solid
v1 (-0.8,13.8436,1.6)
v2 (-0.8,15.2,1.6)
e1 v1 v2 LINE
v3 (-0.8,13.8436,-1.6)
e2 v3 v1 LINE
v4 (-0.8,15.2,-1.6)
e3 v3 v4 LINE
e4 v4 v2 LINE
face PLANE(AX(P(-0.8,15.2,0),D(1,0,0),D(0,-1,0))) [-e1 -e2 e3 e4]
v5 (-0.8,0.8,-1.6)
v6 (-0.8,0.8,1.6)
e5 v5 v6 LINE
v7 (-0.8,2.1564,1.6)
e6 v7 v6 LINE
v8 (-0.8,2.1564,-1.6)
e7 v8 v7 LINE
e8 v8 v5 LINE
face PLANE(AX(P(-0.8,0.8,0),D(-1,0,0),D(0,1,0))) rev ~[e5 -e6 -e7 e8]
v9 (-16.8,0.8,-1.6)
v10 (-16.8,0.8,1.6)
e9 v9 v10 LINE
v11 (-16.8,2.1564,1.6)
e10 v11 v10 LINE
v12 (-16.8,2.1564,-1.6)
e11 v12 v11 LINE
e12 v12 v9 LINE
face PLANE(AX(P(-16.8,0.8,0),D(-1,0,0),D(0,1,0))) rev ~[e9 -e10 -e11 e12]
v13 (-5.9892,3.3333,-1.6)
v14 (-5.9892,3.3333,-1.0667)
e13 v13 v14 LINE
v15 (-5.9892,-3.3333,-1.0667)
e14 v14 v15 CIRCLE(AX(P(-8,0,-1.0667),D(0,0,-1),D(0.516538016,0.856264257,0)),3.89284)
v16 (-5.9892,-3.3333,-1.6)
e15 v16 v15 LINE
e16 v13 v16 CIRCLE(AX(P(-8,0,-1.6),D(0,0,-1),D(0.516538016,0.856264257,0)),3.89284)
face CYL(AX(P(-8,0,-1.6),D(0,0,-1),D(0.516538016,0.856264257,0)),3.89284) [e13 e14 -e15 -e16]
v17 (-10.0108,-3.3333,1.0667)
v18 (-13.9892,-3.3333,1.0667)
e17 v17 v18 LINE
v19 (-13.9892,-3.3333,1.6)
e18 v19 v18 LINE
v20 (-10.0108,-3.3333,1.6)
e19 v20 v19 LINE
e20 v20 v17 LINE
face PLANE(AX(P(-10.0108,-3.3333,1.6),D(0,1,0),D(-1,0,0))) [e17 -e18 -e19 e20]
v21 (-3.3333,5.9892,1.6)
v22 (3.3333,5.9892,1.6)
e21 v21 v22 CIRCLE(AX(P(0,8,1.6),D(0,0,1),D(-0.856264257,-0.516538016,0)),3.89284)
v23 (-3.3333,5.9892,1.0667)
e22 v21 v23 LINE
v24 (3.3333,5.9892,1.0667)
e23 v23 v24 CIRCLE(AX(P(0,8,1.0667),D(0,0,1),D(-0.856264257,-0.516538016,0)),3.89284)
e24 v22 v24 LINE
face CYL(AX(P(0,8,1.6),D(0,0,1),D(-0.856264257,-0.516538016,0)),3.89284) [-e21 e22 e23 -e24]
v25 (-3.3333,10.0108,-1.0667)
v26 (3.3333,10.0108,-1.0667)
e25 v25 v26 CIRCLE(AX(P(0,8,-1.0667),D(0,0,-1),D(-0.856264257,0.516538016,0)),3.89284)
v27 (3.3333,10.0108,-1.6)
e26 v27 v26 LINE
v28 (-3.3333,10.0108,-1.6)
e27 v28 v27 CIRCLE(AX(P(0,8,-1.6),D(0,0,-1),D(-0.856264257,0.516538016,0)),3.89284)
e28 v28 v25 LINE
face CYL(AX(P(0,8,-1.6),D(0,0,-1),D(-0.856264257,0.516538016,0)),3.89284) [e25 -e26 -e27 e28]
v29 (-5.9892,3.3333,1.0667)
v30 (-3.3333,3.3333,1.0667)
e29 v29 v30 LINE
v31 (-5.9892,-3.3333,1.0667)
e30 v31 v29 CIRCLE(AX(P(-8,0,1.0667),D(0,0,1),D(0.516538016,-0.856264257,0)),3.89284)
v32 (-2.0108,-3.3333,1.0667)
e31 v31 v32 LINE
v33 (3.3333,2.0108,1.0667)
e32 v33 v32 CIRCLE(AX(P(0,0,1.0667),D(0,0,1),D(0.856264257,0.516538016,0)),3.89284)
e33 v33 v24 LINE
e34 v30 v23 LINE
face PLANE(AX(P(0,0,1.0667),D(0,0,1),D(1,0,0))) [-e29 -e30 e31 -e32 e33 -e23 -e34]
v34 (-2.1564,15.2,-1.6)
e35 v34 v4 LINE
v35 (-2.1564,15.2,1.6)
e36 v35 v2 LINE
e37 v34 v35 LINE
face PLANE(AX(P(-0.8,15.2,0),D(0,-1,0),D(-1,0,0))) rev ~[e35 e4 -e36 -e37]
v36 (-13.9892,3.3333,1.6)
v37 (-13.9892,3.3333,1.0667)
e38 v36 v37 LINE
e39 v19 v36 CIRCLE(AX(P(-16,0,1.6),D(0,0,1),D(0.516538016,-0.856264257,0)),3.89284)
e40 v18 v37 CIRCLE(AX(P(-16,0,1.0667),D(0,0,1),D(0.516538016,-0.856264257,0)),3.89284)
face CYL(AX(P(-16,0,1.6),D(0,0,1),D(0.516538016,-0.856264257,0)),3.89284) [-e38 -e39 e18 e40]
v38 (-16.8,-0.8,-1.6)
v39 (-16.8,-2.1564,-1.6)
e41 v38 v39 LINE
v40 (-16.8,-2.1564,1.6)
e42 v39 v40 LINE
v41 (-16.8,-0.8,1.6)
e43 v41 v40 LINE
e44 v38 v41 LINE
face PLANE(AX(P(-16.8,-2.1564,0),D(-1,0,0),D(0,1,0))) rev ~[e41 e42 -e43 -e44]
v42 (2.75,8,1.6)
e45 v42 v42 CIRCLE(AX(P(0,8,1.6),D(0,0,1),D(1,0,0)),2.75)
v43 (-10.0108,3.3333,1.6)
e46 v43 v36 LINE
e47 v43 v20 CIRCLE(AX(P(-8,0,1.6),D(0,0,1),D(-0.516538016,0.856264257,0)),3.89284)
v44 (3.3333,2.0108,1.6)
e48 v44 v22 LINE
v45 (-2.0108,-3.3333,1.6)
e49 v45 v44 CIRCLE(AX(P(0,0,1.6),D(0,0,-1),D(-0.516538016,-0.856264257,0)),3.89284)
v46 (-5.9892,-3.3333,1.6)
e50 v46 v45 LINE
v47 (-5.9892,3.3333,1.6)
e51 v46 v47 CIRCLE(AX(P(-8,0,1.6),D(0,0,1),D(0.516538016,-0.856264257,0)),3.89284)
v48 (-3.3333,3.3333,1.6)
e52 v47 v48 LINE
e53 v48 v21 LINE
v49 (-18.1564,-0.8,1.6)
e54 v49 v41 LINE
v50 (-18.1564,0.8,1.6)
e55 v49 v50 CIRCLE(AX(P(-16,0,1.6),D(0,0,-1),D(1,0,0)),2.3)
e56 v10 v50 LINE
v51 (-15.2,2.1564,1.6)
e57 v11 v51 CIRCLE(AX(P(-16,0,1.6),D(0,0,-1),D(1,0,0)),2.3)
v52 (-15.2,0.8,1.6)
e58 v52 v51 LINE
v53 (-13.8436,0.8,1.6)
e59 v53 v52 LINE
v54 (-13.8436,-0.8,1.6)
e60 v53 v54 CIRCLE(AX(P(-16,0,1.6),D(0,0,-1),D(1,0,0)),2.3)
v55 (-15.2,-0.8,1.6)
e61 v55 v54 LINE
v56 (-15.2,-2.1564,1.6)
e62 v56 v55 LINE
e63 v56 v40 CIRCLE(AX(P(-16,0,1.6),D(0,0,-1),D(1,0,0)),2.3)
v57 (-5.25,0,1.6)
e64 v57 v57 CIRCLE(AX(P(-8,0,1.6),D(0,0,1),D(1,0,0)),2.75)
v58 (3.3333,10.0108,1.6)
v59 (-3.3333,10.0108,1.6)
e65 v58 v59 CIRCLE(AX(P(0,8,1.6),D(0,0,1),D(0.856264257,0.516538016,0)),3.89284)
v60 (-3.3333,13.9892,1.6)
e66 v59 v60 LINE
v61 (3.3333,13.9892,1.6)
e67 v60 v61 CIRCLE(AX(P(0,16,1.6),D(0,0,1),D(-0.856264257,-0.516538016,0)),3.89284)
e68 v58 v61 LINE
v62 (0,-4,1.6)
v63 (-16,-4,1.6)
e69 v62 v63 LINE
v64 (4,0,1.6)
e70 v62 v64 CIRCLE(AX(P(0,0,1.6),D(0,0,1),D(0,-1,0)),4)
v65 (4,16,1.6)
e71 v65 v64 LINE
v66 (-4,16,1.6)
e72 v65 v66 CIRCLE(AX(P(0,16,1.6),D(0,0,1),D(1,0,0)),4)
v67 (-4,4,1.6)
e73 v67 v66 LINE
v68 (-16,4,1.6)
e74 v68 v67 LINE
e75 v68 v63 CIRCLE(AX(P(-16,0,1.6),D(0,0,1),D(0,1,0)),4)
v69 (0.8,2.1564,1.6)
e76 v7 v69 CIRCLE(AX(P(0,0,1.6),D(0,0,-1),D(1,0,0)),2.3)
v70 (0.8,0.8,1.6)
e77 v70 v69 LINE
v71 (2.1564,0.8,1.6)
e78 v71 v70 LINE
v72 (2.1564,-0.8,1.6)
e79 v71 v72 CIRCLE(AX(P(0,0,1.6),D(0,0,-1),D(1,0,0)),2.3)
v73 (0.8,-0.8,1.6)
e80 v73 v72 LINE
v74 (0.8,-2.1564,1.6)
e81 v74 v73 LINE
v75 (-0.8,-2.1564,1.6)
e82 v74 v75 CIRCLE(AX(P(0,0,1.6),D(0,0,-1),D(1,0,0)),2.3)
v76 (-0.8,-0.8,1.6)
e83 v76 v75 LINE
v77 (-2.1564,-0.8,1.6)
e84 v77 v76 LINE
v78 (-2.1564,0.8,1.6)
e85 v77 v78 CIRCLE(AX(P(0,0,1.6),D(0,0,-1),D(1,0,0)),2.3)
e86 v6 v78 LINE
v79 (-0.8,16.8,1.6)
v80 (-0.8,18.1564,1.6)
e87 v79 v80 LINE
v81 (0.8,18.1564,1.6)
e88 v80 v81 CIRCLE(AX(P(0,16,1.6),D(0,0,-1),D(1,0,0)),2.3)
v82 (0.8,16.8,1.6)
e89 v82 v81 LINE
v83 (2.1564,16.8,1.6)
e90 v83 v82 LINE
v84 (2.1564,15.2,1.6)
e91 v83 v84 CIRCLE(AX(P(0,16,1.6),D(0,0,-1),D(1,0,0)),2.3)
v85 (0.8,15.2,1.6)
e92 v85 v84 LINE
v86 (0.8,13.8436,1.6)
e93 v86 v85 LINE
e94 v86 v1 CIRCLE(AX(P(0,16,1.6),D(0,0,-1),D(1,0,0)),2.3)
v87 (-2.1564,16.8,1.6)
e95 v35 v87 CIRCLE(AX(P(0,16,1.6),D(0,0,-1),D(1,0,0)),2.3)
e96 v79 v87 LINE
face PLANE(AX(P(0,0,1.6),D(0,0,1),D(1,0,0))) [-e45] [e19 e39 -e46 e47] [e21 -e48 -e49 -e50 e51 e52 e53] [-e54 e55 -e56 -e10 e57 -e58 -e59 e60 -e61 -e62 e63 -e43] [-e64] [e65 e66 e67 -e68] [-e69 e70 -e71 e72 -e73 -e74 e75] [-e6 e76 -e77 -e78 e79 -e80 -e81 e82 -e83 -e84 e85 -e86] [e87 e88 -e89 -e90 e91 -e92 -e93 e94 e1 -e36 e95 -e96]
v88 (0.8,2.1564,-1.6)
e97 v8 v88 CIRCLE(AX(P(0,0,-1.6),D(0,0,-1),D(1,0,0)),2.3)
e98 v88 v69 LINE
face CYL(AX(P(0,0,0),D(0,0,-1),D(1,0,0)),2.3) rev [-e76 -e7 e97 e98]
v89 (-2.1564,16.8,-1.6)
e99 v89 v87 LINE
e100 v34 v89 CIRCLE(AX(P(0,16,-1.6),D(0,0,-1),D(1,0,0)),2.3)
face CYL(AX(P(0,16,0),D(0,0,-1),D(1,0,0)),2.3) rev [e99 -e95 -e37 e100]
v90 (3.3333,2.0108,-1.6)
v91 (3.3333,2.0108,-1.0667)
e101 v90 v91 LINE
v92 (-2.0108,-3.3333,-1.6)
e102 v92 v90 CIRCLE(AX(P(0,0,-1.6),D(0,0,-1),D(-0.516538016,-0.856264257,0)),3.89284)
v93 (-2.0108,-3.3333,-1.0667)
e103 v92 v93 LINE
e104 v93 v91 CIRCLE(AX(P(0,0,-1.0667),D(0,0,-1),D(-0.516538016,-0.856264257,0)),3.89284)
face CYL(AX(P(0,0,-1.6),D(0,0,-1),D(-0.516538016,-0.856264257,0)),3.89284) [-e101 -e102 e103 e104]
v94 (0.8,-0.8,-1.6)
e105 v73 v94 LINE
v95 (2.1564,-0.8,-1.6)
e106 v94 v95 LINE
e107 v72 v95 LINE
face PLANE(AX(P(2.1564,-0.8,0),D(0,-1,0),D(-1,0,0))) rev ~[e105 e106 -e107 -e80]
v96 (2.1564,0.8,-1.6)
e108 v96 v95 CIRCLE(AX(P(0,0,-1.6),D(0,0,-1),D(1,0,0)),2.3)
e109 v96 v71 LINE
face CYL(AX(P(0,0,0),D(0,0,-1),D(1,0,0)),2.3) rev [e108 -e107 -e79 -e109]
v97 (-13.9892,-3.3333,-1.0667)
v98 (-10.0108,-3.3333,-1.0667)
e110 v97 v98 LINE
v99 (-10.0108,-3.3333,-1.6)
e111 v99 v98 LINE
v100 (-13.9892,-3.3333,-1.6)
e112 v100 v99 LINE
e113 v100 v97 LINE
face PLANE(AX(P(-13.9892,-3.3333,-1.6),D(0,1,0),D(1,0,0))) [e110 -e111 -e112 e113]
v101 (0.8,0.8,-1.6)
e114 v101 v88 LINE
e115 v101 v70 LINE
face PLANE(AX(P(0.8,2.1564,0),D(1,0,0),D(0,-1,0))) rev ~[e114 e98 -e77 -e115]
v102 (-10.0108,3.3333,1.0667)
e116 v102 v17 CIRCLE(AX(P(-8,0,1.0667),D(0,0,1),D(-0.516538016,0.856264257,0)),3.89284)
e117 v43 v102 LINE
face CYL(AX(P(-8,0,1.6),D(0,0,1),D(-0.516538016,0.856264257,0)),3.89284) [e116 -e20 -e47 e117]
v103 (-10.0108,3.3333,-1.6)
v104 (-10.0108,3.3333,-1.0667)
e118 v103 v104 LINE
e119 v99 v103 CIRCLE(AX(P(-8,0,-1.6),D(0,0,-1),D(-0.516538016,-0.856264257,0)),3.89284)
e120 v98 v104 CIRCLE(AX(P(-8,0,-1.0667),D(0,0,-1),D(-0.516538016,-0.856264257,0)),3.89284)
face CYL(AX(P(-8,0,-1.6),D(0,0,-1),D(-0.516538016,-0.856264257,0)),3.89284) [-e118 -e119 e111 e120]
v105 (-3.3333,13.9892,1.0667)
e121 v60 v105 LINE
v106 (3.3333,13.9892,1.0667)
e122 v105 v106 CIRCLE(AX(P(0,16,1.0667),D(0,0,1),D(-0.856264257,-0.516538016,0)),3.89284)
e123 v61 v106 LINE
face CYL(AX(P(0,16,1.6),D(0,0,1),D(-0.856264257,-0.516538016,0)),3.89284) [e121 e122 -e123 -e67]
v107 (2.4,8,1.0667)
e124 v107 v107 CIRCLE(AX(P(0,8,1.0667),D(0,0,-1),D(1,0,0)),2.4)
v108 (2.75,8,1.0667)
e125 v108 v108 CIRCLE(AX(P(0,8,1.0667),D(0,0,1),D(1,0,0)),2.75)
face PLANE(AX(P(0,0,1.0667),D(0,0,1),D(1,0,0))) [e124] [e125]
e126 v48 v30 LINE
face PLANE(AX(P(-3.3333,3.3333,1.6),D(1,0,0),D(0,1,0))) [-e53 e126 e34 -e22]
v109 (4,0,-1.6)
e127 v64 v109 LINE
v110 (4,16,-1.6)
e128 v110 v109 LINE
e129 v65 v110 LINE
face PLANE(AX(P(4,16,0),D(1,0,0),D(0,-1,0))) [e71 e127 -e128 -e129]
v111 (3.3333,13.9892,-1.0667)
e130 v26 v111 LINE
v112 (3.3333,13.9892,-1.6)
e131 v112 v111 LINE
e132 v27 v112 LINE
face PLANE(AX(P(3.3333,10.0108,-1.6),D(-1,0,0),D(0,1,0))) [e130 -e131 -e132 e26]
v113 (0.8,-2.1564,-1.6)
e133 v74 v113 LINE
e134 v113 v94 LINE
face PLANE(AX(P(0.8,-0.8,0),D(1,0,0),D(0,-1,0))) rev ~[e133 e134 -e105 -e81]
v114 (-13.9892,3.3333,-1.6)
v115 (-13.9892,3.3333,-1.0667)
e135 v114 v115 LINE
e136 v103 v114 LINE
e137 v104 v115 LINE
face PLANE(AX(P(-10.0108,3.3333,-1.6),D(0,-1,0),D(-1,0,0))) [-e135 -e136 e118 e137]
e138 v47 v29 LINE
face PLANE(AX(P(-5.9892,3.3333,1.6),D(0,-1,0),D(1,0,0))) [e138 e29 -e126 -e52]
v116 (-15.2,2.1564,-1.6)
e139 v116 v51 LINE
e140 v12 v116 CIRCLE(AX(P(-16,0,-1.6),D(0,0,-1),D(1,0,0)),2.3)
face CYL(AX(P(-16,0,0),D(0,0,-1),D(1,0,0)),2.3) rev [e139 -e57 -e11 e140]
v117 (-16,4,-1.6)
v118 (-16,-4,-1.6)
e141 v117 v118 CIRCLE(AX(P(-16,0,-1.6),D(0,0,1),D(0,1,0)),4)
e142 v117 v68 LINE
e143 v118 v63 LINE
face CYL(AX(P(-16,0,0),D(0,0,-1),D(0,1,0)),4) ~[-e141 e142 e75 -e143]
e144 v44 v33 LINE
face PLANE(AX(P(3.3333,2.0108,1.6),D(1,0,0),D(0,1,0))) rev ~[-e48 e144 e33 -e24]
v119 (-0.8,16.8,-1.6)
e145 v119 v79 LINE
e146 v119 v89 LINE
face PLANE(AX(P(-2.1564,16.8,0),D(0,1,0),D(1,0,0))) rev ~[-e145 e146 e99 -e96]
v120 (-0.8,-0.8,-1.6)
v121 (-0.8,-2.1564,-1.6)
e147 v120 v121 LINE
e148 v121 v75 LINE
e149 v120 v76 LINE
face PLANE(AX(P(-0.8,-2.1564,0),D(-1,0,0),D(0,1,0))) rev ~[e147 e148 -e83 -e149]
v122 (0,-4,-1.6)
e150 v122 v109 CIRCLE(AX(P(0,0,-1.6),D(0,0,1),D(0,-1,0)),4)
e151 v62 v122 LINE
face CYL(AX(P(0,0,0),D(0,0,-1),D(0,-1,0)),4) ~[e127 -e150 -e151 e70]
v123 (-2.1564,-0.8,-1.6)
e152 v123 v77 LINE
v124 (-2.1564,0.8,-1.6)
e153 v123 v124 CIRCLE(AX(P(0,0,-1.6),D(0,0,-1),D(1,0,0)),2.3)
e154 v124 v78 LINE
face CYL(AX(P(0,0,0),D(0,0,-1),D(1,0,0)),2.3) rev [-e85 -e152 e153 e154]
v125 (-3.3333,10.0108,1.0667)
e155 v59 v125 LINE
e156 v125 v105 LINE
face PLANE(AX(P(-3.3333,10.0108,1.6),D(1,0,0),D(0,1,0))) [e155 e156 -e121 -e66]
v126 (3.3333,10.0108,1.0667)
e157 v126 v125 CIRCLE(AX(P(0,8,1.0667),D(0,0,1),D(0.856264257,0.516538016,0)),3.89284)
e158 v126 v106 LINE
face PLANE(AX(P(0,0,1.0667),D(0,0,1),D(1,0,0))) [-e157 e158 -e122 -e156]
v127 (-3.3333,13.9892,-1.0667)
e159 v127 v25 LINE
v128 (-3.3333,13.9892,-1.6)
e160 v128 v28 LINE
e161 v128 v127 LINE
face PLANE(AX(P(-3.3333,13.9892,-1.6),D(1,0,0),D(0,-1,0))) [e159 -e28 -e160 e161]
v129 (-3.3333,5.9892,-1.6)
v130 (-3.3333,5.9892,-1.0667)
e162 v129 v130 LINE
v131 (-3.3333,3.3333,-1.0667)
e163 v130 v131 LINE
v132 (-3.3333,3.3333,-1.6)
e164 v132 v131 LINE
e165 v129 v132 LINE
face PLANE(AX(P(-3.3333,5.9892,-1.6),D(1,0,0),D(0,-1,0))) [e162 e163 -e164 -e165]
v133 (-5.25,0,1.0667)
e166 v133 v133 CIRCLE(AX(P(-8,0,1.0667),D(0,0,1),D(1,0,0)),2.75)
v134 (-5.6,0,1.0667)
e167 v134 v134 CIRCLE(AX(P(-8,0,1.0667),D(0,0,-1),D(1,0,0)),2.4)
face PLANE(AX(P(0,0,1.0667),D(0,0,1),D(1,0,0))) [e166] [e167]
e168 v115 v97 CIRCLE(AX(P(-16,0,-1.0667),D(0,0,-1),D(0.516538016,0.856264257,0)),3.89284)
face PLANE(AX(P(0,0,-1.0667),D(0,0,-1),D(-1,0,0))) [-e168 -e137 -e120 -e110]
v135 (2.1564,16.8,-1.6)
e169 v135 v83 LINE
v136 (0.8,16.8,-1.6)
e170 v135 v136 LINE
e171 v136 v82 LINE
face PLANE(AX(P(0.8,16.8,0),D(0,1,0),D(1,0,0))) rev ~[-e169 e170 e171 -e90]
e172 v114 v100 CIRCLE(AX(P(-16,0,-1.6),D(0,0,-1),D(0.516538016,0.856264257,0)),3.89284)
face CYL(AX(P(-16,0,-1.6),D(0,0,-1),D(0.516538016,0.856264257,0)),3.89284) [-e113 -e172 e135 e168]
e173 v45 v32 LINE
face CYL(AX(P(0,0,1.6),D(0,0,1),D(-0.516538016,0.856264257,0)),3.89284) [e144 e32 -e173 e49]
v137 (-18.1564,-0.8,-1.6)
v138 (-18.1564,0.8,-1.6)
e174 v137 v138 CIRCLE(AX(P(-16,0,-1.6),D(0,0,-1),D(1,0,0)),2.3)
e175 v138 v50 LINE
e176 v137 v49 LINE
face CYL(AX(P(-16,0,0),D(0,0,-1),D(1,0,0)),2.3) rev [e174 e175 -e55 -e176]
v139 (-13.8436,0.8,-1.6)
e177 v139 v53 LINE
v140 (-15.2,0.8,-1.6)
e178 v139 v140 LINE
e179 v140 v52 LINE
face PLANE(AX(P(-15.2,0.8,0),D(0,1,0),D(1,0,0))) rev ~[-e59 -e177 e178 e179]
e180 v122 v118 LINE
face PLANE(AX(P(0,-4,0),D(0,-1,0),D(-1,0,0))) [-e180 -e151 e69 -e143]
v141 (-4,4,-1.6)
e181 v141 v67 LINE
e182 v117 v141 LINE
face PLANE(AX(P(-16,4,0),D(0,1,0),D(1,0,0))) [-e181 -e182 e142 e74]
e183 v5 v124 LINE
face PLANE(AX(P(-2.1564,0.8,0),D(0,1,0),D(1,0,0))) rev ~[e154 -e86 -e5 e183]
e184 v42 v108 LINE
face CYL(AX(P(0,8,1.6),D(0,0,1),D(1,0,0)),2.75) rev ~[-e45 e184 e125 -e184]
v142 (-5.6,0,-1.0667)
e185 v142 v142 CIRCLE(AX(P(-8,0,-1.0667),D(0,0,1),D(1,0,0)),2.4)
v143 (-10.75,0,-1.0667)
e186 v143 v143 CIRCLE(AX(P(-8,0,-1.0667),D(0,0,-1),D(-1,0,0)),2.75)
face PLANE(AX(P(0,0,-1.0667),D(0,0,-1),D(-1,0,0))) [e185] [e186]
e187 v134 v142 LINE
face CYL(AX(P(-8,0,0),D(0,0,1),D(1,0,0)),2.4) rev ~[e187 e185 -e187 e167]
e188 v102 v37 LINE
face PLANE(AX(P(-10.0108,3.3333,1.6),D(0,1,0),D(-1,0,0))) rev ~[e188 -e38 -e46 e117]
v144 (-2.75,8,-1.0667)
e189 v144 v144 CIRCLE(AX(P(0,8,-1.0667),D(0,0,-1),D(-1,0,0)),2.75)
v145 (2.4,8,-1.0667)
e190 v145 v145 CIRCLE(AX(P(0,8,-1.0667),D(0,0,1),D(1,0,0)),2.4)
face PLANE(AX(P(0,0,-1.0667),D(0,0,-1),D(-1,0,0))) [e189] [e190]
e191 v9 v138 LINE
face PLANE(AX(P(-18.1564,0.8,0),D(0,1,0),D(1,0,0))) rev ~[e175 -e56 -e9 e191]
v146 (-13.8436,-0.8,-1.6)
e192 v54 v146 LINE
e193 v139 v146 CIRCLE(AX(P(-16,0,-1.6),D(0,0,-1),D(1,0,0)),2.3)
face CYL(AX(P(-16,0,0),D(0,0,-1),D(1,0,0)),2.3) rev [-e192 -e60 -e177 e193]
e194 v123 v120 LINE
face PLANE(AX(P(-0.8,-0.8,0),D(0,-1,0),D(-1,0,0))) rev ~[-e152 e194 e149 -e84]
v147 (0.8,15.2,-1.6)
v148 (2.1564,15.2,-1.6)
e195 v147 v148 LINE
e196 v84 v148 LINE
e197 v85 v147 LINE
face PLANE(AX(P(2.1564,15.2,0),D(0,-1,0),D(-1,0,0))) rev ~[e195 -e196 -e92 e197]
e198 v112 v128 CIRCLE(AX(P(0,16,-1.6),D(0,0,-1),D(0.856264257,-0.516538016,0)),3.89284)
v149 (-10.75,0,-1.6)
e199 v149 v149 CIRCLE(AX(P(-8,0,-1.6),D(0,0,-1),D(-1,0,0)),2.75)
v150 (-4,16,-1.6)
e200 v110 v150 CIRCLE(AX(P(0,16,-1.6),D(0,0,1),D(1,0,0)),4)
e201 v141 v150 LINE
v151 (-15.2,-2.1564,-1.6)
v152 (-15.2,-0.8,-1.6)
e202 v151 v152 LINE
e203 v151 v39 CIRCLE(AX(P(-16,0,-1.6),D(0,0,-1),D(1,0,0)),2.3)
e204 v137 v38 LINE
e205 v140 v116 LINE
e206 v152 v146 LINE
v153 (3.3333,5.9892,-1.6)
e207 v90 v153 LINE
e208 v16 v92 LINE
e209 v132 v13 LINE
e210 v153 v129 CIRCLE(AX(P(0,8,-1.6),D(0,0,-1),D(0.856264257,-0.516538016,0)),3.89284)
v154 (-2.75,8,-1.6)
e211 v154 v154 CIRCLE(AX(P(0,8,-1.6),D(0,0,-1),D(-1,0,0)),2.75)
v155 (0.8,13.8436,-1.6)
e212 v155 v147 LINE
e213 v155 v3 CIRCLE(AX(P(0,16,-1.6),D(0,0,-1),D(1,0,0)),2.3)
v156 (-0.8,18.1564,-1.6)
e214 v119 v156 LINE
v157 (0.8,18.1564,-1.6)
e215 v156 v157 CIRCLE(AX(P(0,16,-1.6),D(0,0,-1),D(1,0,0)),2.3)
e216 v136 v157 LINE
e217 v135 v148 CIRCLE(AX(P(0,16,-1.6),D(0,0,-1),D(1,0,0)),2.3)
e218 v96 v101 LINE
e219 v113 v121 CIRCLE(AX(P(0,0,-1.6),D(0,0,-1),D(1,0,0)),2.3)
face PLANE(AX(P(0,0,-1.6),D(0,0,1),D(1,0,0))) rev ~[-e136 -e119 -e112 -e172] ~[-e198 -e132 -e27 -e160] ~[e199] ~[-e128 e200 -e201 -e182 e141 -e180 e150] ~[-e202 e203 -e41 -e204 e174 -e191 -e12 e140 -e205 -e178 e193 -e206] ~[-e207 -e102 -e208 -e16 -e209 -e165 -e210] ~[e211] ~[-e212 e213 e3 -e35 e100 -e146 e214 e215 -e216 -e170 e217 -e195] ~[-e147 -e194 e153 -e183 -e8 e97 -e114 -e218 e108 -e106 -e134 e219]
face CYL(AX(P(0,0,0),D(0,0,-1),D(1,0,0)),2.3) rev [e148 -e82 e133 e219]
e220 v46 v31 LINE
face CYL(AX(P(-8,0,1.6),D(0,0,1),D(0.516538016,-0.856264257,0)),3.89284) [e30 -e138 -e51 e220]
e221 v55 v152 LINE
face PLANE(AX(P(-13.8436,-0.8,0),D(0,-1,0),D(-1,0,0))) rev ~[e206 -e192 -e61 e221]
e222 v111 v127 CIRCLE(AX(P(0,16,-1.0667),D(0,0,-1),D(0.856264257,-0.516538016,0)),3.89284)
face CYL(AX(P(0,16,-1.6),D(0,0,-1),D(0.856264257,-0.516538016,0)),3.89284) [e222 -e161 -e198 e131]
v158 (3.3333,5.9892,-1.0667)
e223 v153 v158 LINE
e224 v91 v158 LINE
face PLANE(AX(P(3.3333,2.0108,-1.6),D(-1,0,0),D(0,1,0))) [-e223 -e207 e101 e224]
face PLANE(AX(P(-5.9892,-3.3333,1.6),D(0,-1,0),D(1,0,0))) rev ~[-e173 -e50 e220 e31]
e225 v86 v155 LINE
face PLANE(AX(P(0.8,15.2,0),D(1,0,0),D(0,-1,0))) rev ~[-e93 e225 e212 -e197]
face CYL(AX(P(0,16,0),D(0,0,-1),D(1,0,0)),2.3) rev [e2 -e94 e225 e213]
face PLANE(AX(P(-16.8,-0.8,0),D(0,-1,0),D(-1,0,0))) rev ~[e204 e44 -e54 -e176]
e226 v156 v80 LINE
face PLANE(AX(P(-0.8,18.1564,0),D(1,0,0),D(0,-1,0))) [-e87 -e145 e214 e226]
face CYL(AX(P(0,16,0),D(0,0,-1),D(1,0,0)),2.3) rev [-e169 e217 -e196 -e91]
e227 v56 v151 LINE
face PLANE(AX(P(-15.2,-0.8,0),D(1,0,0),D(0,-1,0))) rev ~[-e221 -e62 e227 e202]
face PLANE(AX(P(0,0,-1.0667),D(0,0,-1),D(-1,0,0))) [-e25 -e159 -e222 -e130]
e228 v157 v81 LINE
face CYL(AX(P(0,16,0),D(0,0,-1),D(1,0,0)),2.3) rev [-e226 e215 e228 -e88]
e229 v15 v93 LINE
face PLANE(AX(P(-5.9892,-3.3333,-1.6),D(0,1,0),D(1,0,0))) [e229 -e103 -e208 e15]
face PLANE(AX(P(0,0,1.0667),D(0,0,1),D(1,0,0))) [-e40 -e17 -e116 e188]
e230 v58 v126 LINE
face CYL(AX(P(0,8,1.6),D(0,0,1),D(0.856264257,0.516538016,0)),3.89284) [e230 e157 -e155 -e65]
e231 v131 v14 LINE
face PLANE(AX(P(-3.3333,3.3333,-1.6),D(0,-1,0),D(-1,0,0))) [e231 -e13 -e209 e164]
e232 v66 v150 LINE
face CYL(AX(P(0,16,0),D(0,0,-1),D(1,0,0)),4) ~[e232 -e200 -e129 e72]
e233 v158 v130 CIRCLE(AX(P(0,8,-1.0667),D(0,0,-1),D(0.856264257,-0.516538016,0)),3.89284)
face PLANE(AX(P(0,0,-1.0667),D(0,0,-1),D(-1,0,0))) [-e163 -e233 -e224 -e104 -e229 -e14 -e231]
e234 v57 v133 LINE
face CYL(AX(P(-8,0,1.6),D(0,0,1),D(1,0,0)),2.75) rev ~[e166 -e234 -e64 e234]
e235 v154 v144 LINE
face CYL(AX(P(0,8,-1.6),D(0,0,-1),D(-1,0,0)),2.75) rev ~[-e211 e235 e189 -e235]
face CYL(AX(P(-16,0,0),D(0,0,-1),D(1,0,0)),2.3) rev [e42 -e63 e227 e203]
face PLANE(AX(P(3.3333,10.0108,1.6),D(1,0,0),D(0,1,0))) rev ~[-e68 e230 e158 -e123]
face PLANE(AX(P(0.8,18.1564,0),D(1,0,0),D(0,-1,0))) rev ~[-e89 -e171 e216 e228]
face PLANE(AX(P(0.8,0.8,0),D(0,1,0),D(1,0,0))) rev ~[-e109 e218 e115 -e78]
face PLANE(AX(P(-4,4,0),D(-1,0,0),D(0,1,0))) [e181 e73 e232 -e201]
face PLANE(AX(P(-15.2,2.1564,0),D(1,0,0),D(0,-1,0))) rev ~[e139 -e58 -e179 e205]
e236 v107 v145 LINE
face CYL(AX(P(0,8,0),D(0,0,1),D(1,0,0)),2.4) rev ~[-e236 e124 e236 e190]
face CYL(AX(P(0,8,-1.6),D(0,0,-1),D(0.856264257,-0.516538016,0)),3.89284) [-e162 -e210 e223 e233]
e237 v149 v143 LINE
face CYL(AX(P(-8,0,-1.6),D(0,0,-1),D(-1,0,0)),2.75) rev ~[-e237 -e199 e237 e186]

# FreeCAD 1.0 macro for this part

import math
import FreeCAD as App
import Part
import Sketcher

doc = App.newDocument("Part")
params = doc.addObject("Spreadsheet::Sheet", "Params")
for row, (alias, value) in enumerate([
    ("sketch1_radius", "4 mm"),
    ("sketch1_width", "12 mm"),
    ("pad1_length", "3.2 mm"),
    ("sketch2_radius", "2.3 mm"),
    ("sketch3_diameter", "4.8 mm"),
    ("sketch4_diameter", "5.5 mm"),
    ("pocket3_length", "0.5333 mm"),
    ("sketch5_diameter", "5.5 mm"),
    ("pocket4_length", "0.5333 mm"),
    ("pocket5_length", "0.5333 mm"),
    ("pocket6_length", "0.5333 mm"),
], start=1):
    params.set(f"A{row}", alias)
    params.set(f"B{row}", "=" + value)
    params.setAlias(f"B{row}", alias)

body = doc.addObject("PartDesign::Body", "Body")

# Sketch on XY plane
sketch1 = doc.addObject("Sketcher::SketchObject", "Sketch")
body.addObject(sketch1)
sketch1.AttachmentSupport = (doc.XY_Plane, [""])
sketch1.MapMode = "FlatFace"
sketch1.addGeometry([
    Part.LineSegment(App.Vector(-4, 16, 0), App.Vector(-4, 4, 0)),  # 0
    Part.LineSegment(App.Vector(-4, 4, 0), App.Vector(-16, 4, 0)),  # 1
    Part.ArcOfCircle(Part.Circle(App.Vector(-16, 0, 0), App.Vector(0, 0, 1), 4), math.radians(90), math.radians(270)),  # 2
    Part.LineSegment(App.Vector(-16, -4, 0), App.Vector(0, -4, 0)),  # 3
    Part.ArcOfCircle(Part.Circle(App.Vector(0, 0, 0), App.Vector(0, 0, 1), 4), math.radians(-90), math.radians(0)),  # 4
    Part.LineSegment(App.Vector(4, 0, 0), App.Vector(4, 16, 0)),  # 5
    Part.ArcOfCircle(Part.Circle(App.Vector(0, 16, 0), App.Vector(0, 0, 1), 4), math.radians(0), math.radians(180)),  # 6
], False)
sketch1.addConstraint([
    Sketcher.Constraint("Coincident", 0, 2, 1, 1),
    Sketcher.Constraint("Tangent", 1, 2, 2, 1),
    Sketcher.Constraint("Tangent", 2, 2, 3, 1),
    Sketcher.Constraint("Tangent", 3, 2, 4, 1),
    Sketcher.Constraint("Tangent", 4, 2, 5, 1),
    Sketcher.Constraint("Tangent", 5, 2, 6, 1),
    Sketcher.Constraint("Tangent", 6, 2, 0, 1),
    Sketcher.Constraint("Vertical", 0),
    Sketcher.Constraint("Horizontal", 1),
    Sketcher.Constraint("Horizontal", 3),
    Sketcher.Constraint("Vertical", 5),
    Sketcher.Constraint("Coincident", 4, 3, -1, 1),
    Sketcher.Constraint("Equal", 2, 4),
    Sketcher.Constraint("Equal", 4, 6),
    Sketcher.Constraint("Equal", 1, 0),
    Sketcher.Constraint("Radius", 2, 4.0),
    Sketcher.Constraint("DistanceX", 1, 2, 1, 1, 12.0),
])
sketch1.setExpression("Constraints[15]", "Params.sketch1_radius")
sketch1.setExpression("Constraints[16]", "Params.sketch1_width")
pad1 = doc.addObject("PartDesign::Pad", "Pad")
body.addObject(pad1)
pad1.Profile = sketch1
pad1.setExpression("Length", "Params.pad1_length")
pad1.Midplane = True

# Sketch on XY plane
sketch2 = doc.addObject("Sketcher::SketchObject", "Sketch001")
body.addObject(sketch2)
sketch2.AttachmentSupport = (doc.XY_Plane, [""])
sketch2.MapMode = "FlatFace"
sketch2.addGeometry([
    Part.ArcOfCircle(Part.Circle(App.Vector(-16, 0, 0), App.Vector(0, 0, 1), 2.3), math.radians(-20.354284), math.radians(20.354284)),  # 0
    Part.LineSegment(App.Vector(-13.8436, 0.8, 0), App.Vector(-15.2, 0.8, 0)),  # 1
    Part.LineSegment(App.Vector(-15.2, 0.8, 0), App.Vector(-15.2, 2.1564, 0)),  # 2
    Part.ArcOfCircle(Part.Circle(App.Vector(-16, 0, 0), App.Vector(0, 0, 1), 2.3), math.radians(69.645716), math.radians(110.354284)),  # 3
    Part.LineSegment(App.Vector(-16.8, 2.1564, 0), App.Vector(-16.8, 0.8, 0)),  # 4
    Part.LineSegment(App.Vector(-16.8, 0.8, 0), App.Vector(-18.1564, 0.8, 0)),  # 5
    Part.ArcOfCircle(Part.Circle(App.Vector(-16, 0, 0), App.Vector(0, 0, 1), 2.3), math.radians(159.645716), math.radians(200.354284)),  # 6
    Part.LineSegment(App.Vector(-18.1564, -0.8, 0), App.Vector(-16.8, -0.8, 0)),  # 7
    Part.LineSegment(App.Vector(-16.8, -0.8, 0), App.Vector(-16.8, -2.1564, 0)),  # 8
    Part.ArcOfCircle(Part.Circle(App.Vector(-16, 0, 0), App.Vector(0, 0, 1), 2.3), math.radians(-110.354284), math.radians(-69.645716)),  # 9
    Part.LineSegment(App.Vector(-15.2, -2.1564, 0), App.Vector(-15.2, -0.8, 0)),  # 10
    Part.LineSegment(App.Vector(-15.2, -0.8, 0), App.Vector(-13.8436, -0.8, 0)),  # 11
    Part.ArcOfCircle(Part.Circle(App.Vector(0, 16, 0), App.Vector(0, 0, 1), 2.3), math.radians(-20.354284), math.radians(20.354284)),  # 12
    Part.LineSegment(App.Vector(2.1564, 16.8, 0), App.Vector(0.8, 16.8, 0)),  # 13
    Part.LineSegment(App.Vector(0.8, 16.8, 0), App.Vector(0.8, 18.1564, 0)),  # 14
    Part.ArcOfCircle(Part.Circle(App.Vector(0, 16, 0), App.Vector(0, 0, 1), 2.3), math.radians(69.645716), math.radians(110.354284)),  # 15
    Part.LineSegment(App.Vector(-0.8, 18.1564, 0), App.Vector(-0.8, 16.8, 0)),  # 16
    Part.LineSegment(App.Vector(-0.8, 16.8, 0), App.Vector(-2.1564, 16.8, 0)),  # 17
    Part.ArcOfCircle(Part.Circle(App.Vector(0, 16, 0), App.Vector(0, 0, 1), 2.3), math.radians(159.645716), math.radians(200.354284)),  # 18
    Part.LineSegment(App.Vector(-2.1564, 15.2, 0), App.Vector(-0.8, 15.2, 0)),  # 19
    Part.LineSegment(App.Vector(-0.8, 15.2, 0), App.Vector(-0.8, 13.8436, 0)),  # 20
    Part.ArcOfCircle(Part.Circle(App.Vector(0, 16, 0), App.Vector(0, 0, 1), 2.3), math.radians(-110.354284), math.radians(-69.645716)),  # 21
    Part.LineSegment(App.Vector(0.8, 13.8436, 0), App.Vector(0.8, 15.2, 0)),  # 22
    Part.LineSegment(App.Vector(0.8, 15.2, 0), App.Vector(2.1564, 15.2, 0)),  # 23
    Part.ArcOfCircle(Part.Circle(App.Vector(0, 0, 0), App.Vector(0, 0, 1), 2.3), math.radians(-20.354284), math.radians(20.354284)),  # 24
    Part.LineSegment(App.Vector(2.1564, 0.8, 0), App.Vector(0.8, 0.8, 0)),  # 25
    Part.LineSegment(App.Vector(0.8, 0.8, 0), App.Vector(0.8, 2.1564, 0)),  # 26
    Part.ArcOfCircle(Part.Circle(App.Vector(0, 0, 0), App.Vector(0, 0, 1), 2.3), math.radians(69.645716), math.radians(110.354284)),  # 27
    Part.LineSegment(App.Vector(-0.8, 2.1564, 0), App.Vector(-0.8, 0.8, 0)),  # 28
    Part.LineSegment(App.Vector(-0.8, 0.8, 0), App.Vector(-2.1564, 0.8, 0)),  # 29
    Part.ArcOfCircle(Part.Circle(App.Vector(0, 0, 0), App.Vector(0, 0, 1), 2.3), math.radians(159.645716), math.radians(200.354284)),  # 30
    Part.LineSegment(App.Vector(-2.1564, -0.8, 0), App.Vector(-0.8, -0.8, 0)),  # 31
    Part.LineSegment(App.Vector(-0.8, -0.8, 0), App.Vector(-0.8, -2.1564, 0)),  # 32
    Part.ArcOfCircle(Part.Circle(App.Vector(0, 0, 0), App.Vector(0, 0, 1), 2.3), math.radians(-110.354284), math.radians(-69.645716)),  # 33
    Part.LineSegment(App.Vector(0.8, -2.1564, 0), App.Vector(0.8, -0.8, 0)),  # 34
    Part.LineSegment(App.Vector(0.8, -0.8, 0), App.Vector(2.1564, -0.8, 0)),  # 35
], False)
sketch2.addConstraint([
    Sketcher.Constraint("Coincident", 0, 2, 1, 1),
    Sketcher.Constraint("Coincident", 1, 2, 2, 1),
    Sketcher.Constraint("Coincident", 2, 2, 3, 1),
    Sketcher.Constraint("Coincident", 3, 2, 4, 1),
    Sketcher.Constraint("Coincident", 4, 2, 5, 1),
    Sketcher.Constraint("Coincident", 5, 2, 6, 1),
    Sketcher.Constraint("Coincident", 6, 2, 7, 1),
    Sketcher.Constraint("Coincident", 7, 2, 8, 1),
    Sketcher.Constraint("Coincident", 8, 2, 9, 1),
    Sketcher.Constraint("Coincident", 9, 2, 10, 1),
    Sketcher.Constraint("Coincident", 10, 2, 11, 1),
    Sketcher.Constraint("Coincident", 11, 2, 0, 1),
    Sketcher.Constraint("Coincident", 12, 2, 13, 1),
    Sketcher.Constraint("Coincident", 13, 2, 14, 1),
    Sketcher.Constraint("Coincident", 14, 2, 15, 1),
    Sketcher.Constraint("Coincident", 15, 2, 16, 1),
    Sketcher.Constraint("Coincident", 16, 2, 17, 1),
    Sketcher.Constraint("Coincident", 17, 2, 18, 1),
    Sketcher.Constraint("Coincident", 18, 2, 19, 1),
    Sketcher.Constraint("Coincident", 19, 2, 20, 1),
    Sketcher.Constraint("Coincident", 20, 2, 21, 1),
    Sketcher.Constraint("Coincident", 21, 2, 22, 1),
    Sketcher.Constraint("Coincident", 22, 2, 23, 1),
    Sketcher.Constraint("Coincident", 23, 2, 12, 1),
    Sketcher.Constraint("Coincident", 24, 2, 25, 1),
    Sketcher.Constraint("Coincident", 25, 2, 26, 1),
    Sketcher.Constraint("Coincident", 26, 2, 27, 1),
    Sketcher.Constraint("Coincident", 27, 2, 28, 1),
    Sketcher.Constraint("Coincident", 28, 2, 29, 1),
    Sketcher.Constraint("Coincident", 29, 2, 30, 1),
    Sketcher.Constraint("Coincident", 30, 2, 31, 1),
    Sketcher.Constraint("Coincident", 31, 2, 32, 1),
    Sketcher.Constraint("Coincident", 32, 2, 33, 1),
    Sketcher.Constraint("Coincident", 33, 2, 34, 1),
    Sketcher.Constraint("Coincident", 34, 2, 35, 1),
    Sketcher.Constraint("Coincident", 35, 2, 24, 1),
    Sketcher.Constraint("Horizontal", 1),
    Sketcher.Constraint("Vertical", 2),
    Sketcher.Constraint("Vertical", 4),
    Sketcher.Constraint("Horizontal", 5),
    Sketcher.Constraint("Horizontal", 7),
    Sketcher.Constraint("Vertical", 8),
    Sketcher.Constraint("Vertical", 10),
    Sketcher.Constraint("Horizontal", 11),
    Sketcher.Constraint("Horizontal", 13),
    Sketcher.Constraint("Vertical", 14),
    Sketcher.Constraint("Vertical", 16),
    Sketcher.Constraint("Horizontal", 17),
    Sketcher.Constraint("Horizontal", 19),
    Sketcher.Constraint("Vertical", 20),
    Sketcher.Constraint("Vertical", 22),
    Sketcher.Constraint("Horizontal", 23),
    Sketcher.Constraint("Horizontal", 25),
    Sketcher.Constraint("Vertical", 26),
    Sketcher.Constraint("Vertical", 28),
    Sketcher.Constraint("Horizontal", 29),
    Sketcher.Constraint("Horizontal", 31),
    Sketcher.Constraint("Vertical", 32),
    Sketcher.Constraint("Vertical", 34),
    Sketcher.Constraint("Horizontal", 35),
    Sketcher.Constraint("Coincident", 24, 3, -1, 1),
    Sketcher.Constraint("Coincident", 27, 3, -1, 1),
    Sketcher.Constraint("Coincident", 30, 3, -1, 1),
    Sketcher.Constraint("Coincident", 33, 3, -1, 1),
    Sketcher.Constraint("Coincident", 3, 3, 0, 3),
    Sketcher.Constraint("Coincident", 6, 3, 0, 3),
    Sketcher.Constraint("Coincident", 9, 3, 0, 3),
    Sketcher.Constraint("Coincident", 15, 3, 12, 3),
    Sketcher.Constraint("Coincident", 18, 3, 12, 3),
    Sketcher.Constraint("Coincident", 21, 3, 12, 3),
    Sketcher.Constraint("Equal", 0, 3),
    Sketcher.Constraint("Equal", 3, 6),
    Sketcher.Constraint("Equal", 6, 9),
    Sketcher.Constraint("Equal", 9, 12),
    Sketcher.Constraint("Equal", 12, 15),
    Sketcher.Constraint("Equal", 15, 18),
    Sketcher.Constraint("Equal", 18, 21),
    Sketcher.Constraint("Equal", 21, 24),
    Sketcher.Constraint("Equal", 24, 27),
    Sketcher.Constraint("Equal", 27, 30),
    Sketcher.Constraint("Equal", 30, 33),
    Sketcher.Constraint("Symmetric", 25, 2, 31, 2, -1, 1),
    Sketcher.Constraint("Symmetric", 28, 2, 34, 2, -1, 1),
    Sketcher.Constraint("Symmetric", 14, 2, 15, 2, -2),
    Sketcher.Constraint("Symmetric", 19, 2, 22, 2, -2),
    Sketcher.Constraint("Symmetric", 25, 2, 28, 2, -2),
    Sketcher.Constraint("Symmetric", 5, 2, 6, 2, -1),
    Sketcher.Constraint("Symmetric", 1, 2, 10, 2, -1),
    Sketcher.Constraint("Horizontal", 2, 2, 3, 2),
    Sketcher.Constraint("Horizontal", 1, 2, 4, 2),
    Sketcher.Constraint("Horizontal", 8, 2, 9, 2),
    Sketcher.Constraint("Horizontal", 13, 2, 16, 2),
    Sketcher.Constraint("Horizontal", 5, 2, 24, 2),
    Sketcher.Constraint("Horizontal", 3, 2, 26, 2),
    Sketcher.Constraint("Vertical", 17, 2, 18, 2),
    Sketcher.Constraint("Vertical", 16, 2, 19, 2),
    Sketcher.Constraint("Vertical", 23, 2, 24, 2),
    Sketcher.Constraint("Vertical", 22, 2, 25, 2),
    Sketcher.Constraint("Equal", 35, 2),
    Sketcher.Constraint("Radius", 0, 2.3),
    Sketcher.Constraint("DistanceX", 3, 2, 2, 2, 1.6),
    Sketcher.Constraint("DistanceX", 0, 3, -1, 1, 16.0),
    Sketcher.Constraint("DistanceY", -1, 1, 12, 3, 16.0),
])
sketch2.setExpression("Constraints[99]", "Params.sketch2_radius")
pocket1 = doc.addObject("PartDesign::Pocket", "Pocket")
body.addObject(pocket1)
pocket1.Profile = sketch2
pocket1.Type = "ThroughAll"
pocket1.Midplane = True

# Sketch on XY plane
sketch3 = doc.addObject("Sketcher::SketchObject", "Sketch002")
body.addObject(sketch3)
sketch3.AttachmentSupport = (doc.XY_Plane, [""])
sketch3.MapMode = "FlatFace"
sketch3.addGeometry([
    Part.Circle(App.Vector(0, 8, 0), App.Vector(0, 0, 1), 2.4),
    Part.Circle(App.Vector(-8, 0, 0), App.Vector(0, 0, 1), 2.4),
], False)
sketch3.addConstraint([
    Sketcher.Constraint("Equal", 0, 1),
    Sketcher.Constraint("PointOnObject", 0, 3, -2),
    Sketcher.Constraint("PointOnObject", 1, 3, -1),
    Sketcher.Constraint("Diameter", 0, 4.8),
    Sketcher.Constraint("DistanceY", -1, 1, 0, 3, 8.0),
    Sketcher.Constraint("DistanceX", 1, 3, -1, 1, 8.0),
])
sketch3.setExpression("Constraints[3]", "Params.sketch3_diameter")
pocket2 = doc.addObject("PartDesign::Pocket", "Pocket001")
body.addObject(pocket2)
pocket2.Profile = sketch3
pocket2.Type = "ThroughAll"
pocket2.Midplane = True

# Sketch on XY plane
sketch4 = doc.addObject("Sketcher::SketchObject", "Sketch003")
body.addObject(sketch4)
sketch4.AttachmentSupport = (doc.XY_Plane, [""])
sketch4.MapMode = "FlatFace"
sketch4.AttachmentOffset = App.Placement(App.Vector(0, 0, 1.6), App.Rotation())
sketch4.addGeometry([
    Part.Circle(App.Vector(-8, 0, 0), App.Vector(0, 0, 1), 2.75),
    Part.Circle(App.Vector(0, 8, 0), App.Vector(0, 0, 1), 2.75),
], False)
sketch4.addConstraint([
    Sketcher.Constraint("Equal", 0, 1),
    Sketcher.Constraint("PointOnObject", 0, 3, -1),
    Sketcher.Constraint("PointOnObject", 1, 3, -2),
    Sketcher.Constraint("Diameter", 0, 5.5),
    Sketcher.Constraint("DistanceX", 0, 3, -1, 1, 8.0),
    Sketcher.Constraint("DistanceY", -1, 1, 1, 3, 8.0),
])
sketch4.setExpression("Constraints[3]", "Params.sketch4_diameter")
pocket3 = doc.addObject("PartDesign::Pocket", "Pocket002")
body.addObject(pocket3)
pocket3.Profile = sketch4
pocket3.setExpression("Length", "Params.pocket3_length")

# Sketch on XY plane
sketch5 = doc.addObject("Sketcher::SketchObject", "Sketch004")
body.addObject(sketch5)
sketch5.AttachmentSupport = (doc.XY_Plane, [""])
sketch5.MapMode = "FlatFace"
sketch5.AttachmentOffset = App.Placement(App.Vector(0, 0, -1.6), App.Rotation())
sketch5.addGeometry([
    Part.Circle(App.Vector(-8, 0, 0), App.Vector(0, 0, 1), 2.75),
    Part.Circle(App.Vector(0, 8, 0), App.Vector(0, 0, 1), 2.75),
], False)
sketch5.addConstraint([
    Sketcher.Constraint("Equal", 0, 1),
    Sketcher.Constraint("PointOnObject", 0, 3, -1),
    Sketcher.Constraint("PointOnObject", 1, 3, -2),
    Sketcher.Constraint("Diameter", 0, 5.5),
    Sketcher.Constraint("DistanceX", 0, 3, -1, 1, 8.0),
    Sketcher.Constraint("DistanceY", -1, 1, 1, 3, 8.0),
])
sketch5.setExpression("Constraints[3]", "Params.sketch5_diameter")
pocket4 = doc.addObject("PartDesign::Pocket", "Pocket003")
body.addObject(pocket4)
pocket4.Profile = sketch5
pocket4.setExpression("Length", "Params.pocket4_length")
pocket4.Reversed = True

# Sketch on XY plane
sketch6 = doc.addObject("Sketcher::SketchObject", "Sketch005")
body.addObject(sketch6)
sketch6.AttachmentSupport = (doc.XY_Plane, [""])
sketch6.MapMode = "FlatFace"
sketch6.AttachmentOffset = App.Placement(App.Vector(0, 0, 1.6), App.Rotation())
sketch6.addGeometry([
    Part.ArcOfCircle(Part.Circle(App.Vector(-8, 0, 0), App.Vector(0, 0, 1), 3.89284), math.radians(-58.899686), math.radians(58.899686)),  # 0
    Part.LineSegment(App.Vector(-5.9892, -3.3333, 0), App.Vector(-2.0108, -3.3333, 0)),  # 1
    Part.ArcOfCircle(Part.Circle(App.Vector(0, 0, 0), App.Vector(0, 0, 1), 3.89284), math.radians(31.100314), math.radians(238.899686)),  # 2
    Part.LineSegment(App.Vector(3.3333, 2.0108, 0), App.Vector(3.3333, 5.9892, 0)),  # 3
    Part.ArcOfCircle(Part.Circle(App.Vector(0, 8, 0), App.Vector(0, 0, 1), 3.89284), math.radians(-148.899686), math.radians(-31.100314)),  # 4
    Part.LineSegment(App.Vector(-3.3333, 5.9892, 0), App.Vector(-3.3333, 3.3333, 0)),  # 5
    Part.LineSegment(App.Vector(-3.3333, 3.3333, 0), App.Vector(-5.9892, 3.3333, 0)),  # 6
    Part.ArcOfCircle(Part.Circle(App.Vector(-8, 0, 0), App.Vector(0, 0, 1), 3.89284), math.radians(121.100314), math.radians(238.899686)),  # 7
    Part.LineSegment(App.Vector(-10.0108, 3.3333, 0), App.Vector(-13.9892, 3.3333, 0)),  # 8
    Part.ArcOfCircle(Part.Circle(App.Vector(-16, 0, 0), App.Vector(0, 0, 1), 3.89284), math.radians(-58.899686), math.radians(58.899686)),  # 9
    Part.LineSegment(App.Vector(-13.9892, -3.3333, 0), App.Vector(-10.0108, -3.3333, 0)),  # 10
    Part.ArcOfCircle(Part.Circle(App.Vector(0, 8, 0), App.Vector(0, 0, 1), 3.89284), math.radians(31.100314), math.radians(148.899686)),  # 11
    Part.LineSegment(App.Vector(3.3333, 10.0108, 0), App.Vector(3.3333, 13.9892, 0)),  # 12
    Part.ArcOfCircle(Part.Circle(App.Vector(0, 16, 0), App.Vector(0, 0, 1), 3.89284), math.radians(-148.899686), math.radians(-31.100314)),  # 13
    Part.LineSegment(App.Vector(-3.3333, 13.9892, 0), App.Vector(-3.3333, 10.0108, 0)),  # 14
], False)
sketch6.addConstraint([
    Sketcher.Constraint("Coincident", 0, 1, 1, 1),
    Sketcher.Constraint("Coincident", 1, 2, 2, 2),
    Sketcher.Constraint("Coincident", 2, 1, 3, 1),
    Sketcher.Constraint("Coincident", 3, 2, 4, 2),
    Sketcher.Constraint("Coincident", 4, 1, 5, 1),
    Sketcher.Constraint("Coincident", 5, 2, 6, 1),
    Sketcher.Constraint("Coincident", 6, 2, 0, 2),
    Sketcher.Constraint("Coincident", 7, 1, 8, 1),
    Sketcher.Constraint("Coincident", 8, 2, 9, 2),
    Sketcher.Constraint("Coincident", 9, 1, 10, 1),
    Sketcher.Constraint("Coincident", 10, 2, 7, 2),
    Sketcher.Constraint("Coincident", 11, 1, 12, 1),
    Sketcher.Constraint("Coincident", 12, 2, 13, 2),
    Sketcher.Constraint("Coincident", 13, 1, 14, 1),
    Sketcher.Constraint("Coincident", 14, 2, 11, 2),
    Sketcher.Constraint("Horizontal", 1),
    Sketcher.Constraint("Vertical", 3),
    Sketcher.Constraint("Vertical", 5),
    Sketcher.Constraint("Horizontal", 6),
    Sketcher.Constraint("Horizontal", 8),
    Sketcher.Constraint("Horizontal", 10),
    Sketcher.Constraint("Vertical", 12),
    Sketcher.Constraint("Vertical", 14),
    Sketcher.Constraint("Coincident", 2, 3, -1, 1),
    Sketcher.Constraint("Coincident", 7, 3, 0, 3),
    Sketcher.Constraint("Coincident", 11, 3, 4, 3),
    Sketcher.Constraint("Equal", 0, 2),
    Sketcher.Constraint("Equal", 2, 4),
    Sketcher.Constraint("Equal", 4, 7),
    Sketcher.Constraint("Equal", 7, 9),
    Sketcher.Constraint("Equal", 9, 11),
    Sketcher.Constraint("Equal", 11, 13),
    Sketcher.Constraint("Symmetric", 3, 2, 4, 1, -2),
    Sketcher.Constraint("Symmetric", 12, 2, 13, 1, -2),
    Sketcher.Constraint("Symmetric", 0, 1, 6, 2, -1),
    Sketcher.Constraint("Symmetric", 8, 2, 9, 1, -1),
    Sketcher.Constraint("Horizontal", 6, 2, 7, 1),
    Sketcher.Constraint("Vertical", 3, 2, 11, 1),
    Sketcher.Constraint("Equal", 1, 8),
    Sketcher.Constraint("Equal", 10, 3),
    Sketcher.Constraint("Equal", 6, 5),
    Sketcher.Constraint("Equal", 3, 12),
    Sketcher.Constraint("DistanceX", 0, 3, -1, 1, 8.0),
    Sketcher.Constraint("Radius", 0, 3.8928),
    Sketcher.Constraint("DistanceX", 4, 1, 3, 2, 6.6666),
])
pocket5 = doc.addObject("PartDesign::Pocket", "Pocket004")
body.addObject(pocket5)
pocket5.Profile = sketch6
pocket5.setExpression("Length", "Params.pocket5_length")

# Sketch on XY plane
sketch7 = doc.addObject("Sketcher::SketchObject", "Sketch006")
body.addObject(sketch7)
sketch7.AttachmentSupport = (doc.XY_Plane, [""])
sketch7.MapMode = "FlatFace"
sketch7.AttachmentOffset = App.Placement(App.Vector(0, 0, -1.6), App.Rotation())
sketch7.addGeometry([
    Part.ArcOfCircle(Part.Circle(App.Vector(0, 16, 0), App.Vector(0, 0, 1), 3.89284), math.radians(-148.899686), math.radians(-31.100314)),  # 0
    Part.LineSegment(App.Vector(3.3333, 13.9892, 0), App.Vector(3.3333, 10.0108, 0)),  # 1
    Part.ArcOfCircle(Part.Circle(App.Vector(0, 8, 0), App.Vector(0, 0, 1), 3.89284), math.radians(31.100314), math.radians(148.899686)),  # 2
    Part.LineSegment(App.Vector(-3.3333, 10.0108, 0), App.Vector(-3.3333, 13.9892, 0)),  # 3
    Part.ArcOfCircle(Part.Circle(App.Vector(0, 0, 0), App.Vector(0, 0, 1), 3.89284), math.radians(31.100314), math.radians(238.899686)),  # 4
    Part.LineSegment(App.Vector(-2.0108, -3.3333, 0), App.Vector(-5.9892, -3.3333, 0)),  # 5
    Part.ArcOfCircle(Part.Circle(App.Vector(-8, 0, 0), App.Vector(0, 0, 1), 3.89284), math.radians(-58.899686), math.radians(58.899686)),  # 6
    Part.LineSegment(App.Vector(-5.9892, 3.3333, 0), App.Vector(-3.3333, 3.3333, 0)),  # 7
    Part.LineSegment(App.Vector(-3.3333, 3.3333, 0), App.Vector(-3.3333, 5.9892, 0)),  # 8
    Part.ArcOfCircle(Part.Circle(App.Vector(0, 8, 0), App.Vector(0, 0, 1), 3.89284), math.radians(-148.899686), math.radians(-31.100314)),  # 9
    Part.LineSegment(App.Vector(3.3333, 5.9892, 0), App.Vector(3.3333, 2.0108, 0)),  # 10
    Part.LineSegment(App.Vector(-13.9892, 3.3333, 0), App.Vector(-10.0108, 3.3333, 0)),  # 11
    Part.ArcOfCircle(Part.Circle(App.Vector(-8, 0, 0), App.Vector(0, 0, 1), 3.89284), math.radians(121.100314), math.radians(238.899686)),  # 12
    Part.LineSegment(App.Vector(-10.0108, -3.3333, 0), App.Vector(-13.9892, -3.3333, 0)),  # 13
    Part.ArcOfCircle(Part.Circle(App.Vector(-16, 0, 0), App.Vector(0, 0, 1), 3.89284), math.radians(-58.899686), math.radians(58.899686)),  # 14
], False)
sketch7.addConstraint([
    Sketcher.Constraint("Coincident", 0, 2, 1, 1),
    Sketcher.Constraint("Coincident", 1, 2, 2, 1),
    Sketcher.Constraint("Coincident", 2, 2, 3, 1),
    Sketcher.Constraint("Coincident", 3, 2, 0, 1),
    Sketcher.Constraint("Coincident", 4, 2, 5, 1),
    Sketcher.Constraint("Coincident", 5, 2, 6, 1),
    Sketcher.Constraint("Coincident", 6, 2, 7, 1),
    Sketcher.Constraint("Coincident", 7, 2, 8, 1),
    Sketcher.Constraint("Coincident", 8, 2, 9, 1),
    Sketcher.Constraint("Coincident", 9, 2, 10, 1),
    Sketcher.Constraint("Coincident", 10, 2, 4, 1),
    Sketcher.Constraint("Coincident", 11, 2, 12, 1),
    Sketcher.Constraint("Coincident", 12, 2, 13, 1),
    Sketcher.Constraint("Coincident", 13, 2, 14, 1),
    Sketcher.Constraint("Coincident", 14, 2, 11, 1),
    Sketcher.Constraint("Vertical", 1),
    Sketcher.Constraint("Vertical", 3),
    Sketcher.Constraint("Horizontal", 5),
    Sketcher.Constraint("Horizontal", 7),
    Sketcher.Constraint("Vertical", 8),
    Sketcher.Constraint("Vertical", 10),
    Sketcher.Constraint("Horizontal", 11),
    Sketcher.Constraint("Horizontal", 13),
    Sketcher.Constraint("Coincident", 4, 3, -1, 1),
    Sketcher.Constraint("Coincident", 9, 3, 2, 3),
    Sketcher.Constraint("Coincident", 12, 3, 6, 3),
    Sketcher.Constraint("Equal", 0, 2),
    Sketcher.Constraint("Equal", 2, 4),
    Sketcher.Constraint("Equal", 4, 6),
    Sketcher.Constraint("Equal", 6, 9),
    Sketcher.Constraint("Equal", 9, 12),
    Sketcher.Constraint("Equal", 12, 14),
    Sketcher.Constraint("Symmetric", 1, 2, 2, 2, -2),
    Sketcher.Constraint("Symmetric", 5, 2, 6, 2, -1),
    Sketcher.Constraint("Symmetric", 13, 2, 14, 2, -1),
    Sketcher.Constraint("PointOnObject", 0, 3, -2),
    Sketcher.Constraint("Horizontal", 8, 2, 9, 2),
    Sketcher.Constraint("Horizontal", 7, 2, 11, 2),
    Sketcher.Constraint("Vertical", 3, 2, 7, 2),
    Sketcher.Constraint("Equal", 5, 11),
    Sketcher.Constraint("Equal", 13, 1),
    Sketcher.Constraint("Equal", 7, 8),
    Sketcher.Constraint("Equal", 3, 10),
    Sketcher.Constraint("DistanceY", -1, 1, 0, 3, 16.0),
    Sketcher.Constraint("Radius", 0, 3.8928),
    Sketcher.Constraint("DistanceX", 7, 1, 7, 2, 2.656),
])
pocket6 = doc.addObject("PartDesign::Pocket", "Pocket005")
body.addObject(pocket6)
pocket6.Profile = sketch7
pocket6.setExpression("Length", "Params.pocket6_length")
pocket6.Reversed = True

doc.recompute()
